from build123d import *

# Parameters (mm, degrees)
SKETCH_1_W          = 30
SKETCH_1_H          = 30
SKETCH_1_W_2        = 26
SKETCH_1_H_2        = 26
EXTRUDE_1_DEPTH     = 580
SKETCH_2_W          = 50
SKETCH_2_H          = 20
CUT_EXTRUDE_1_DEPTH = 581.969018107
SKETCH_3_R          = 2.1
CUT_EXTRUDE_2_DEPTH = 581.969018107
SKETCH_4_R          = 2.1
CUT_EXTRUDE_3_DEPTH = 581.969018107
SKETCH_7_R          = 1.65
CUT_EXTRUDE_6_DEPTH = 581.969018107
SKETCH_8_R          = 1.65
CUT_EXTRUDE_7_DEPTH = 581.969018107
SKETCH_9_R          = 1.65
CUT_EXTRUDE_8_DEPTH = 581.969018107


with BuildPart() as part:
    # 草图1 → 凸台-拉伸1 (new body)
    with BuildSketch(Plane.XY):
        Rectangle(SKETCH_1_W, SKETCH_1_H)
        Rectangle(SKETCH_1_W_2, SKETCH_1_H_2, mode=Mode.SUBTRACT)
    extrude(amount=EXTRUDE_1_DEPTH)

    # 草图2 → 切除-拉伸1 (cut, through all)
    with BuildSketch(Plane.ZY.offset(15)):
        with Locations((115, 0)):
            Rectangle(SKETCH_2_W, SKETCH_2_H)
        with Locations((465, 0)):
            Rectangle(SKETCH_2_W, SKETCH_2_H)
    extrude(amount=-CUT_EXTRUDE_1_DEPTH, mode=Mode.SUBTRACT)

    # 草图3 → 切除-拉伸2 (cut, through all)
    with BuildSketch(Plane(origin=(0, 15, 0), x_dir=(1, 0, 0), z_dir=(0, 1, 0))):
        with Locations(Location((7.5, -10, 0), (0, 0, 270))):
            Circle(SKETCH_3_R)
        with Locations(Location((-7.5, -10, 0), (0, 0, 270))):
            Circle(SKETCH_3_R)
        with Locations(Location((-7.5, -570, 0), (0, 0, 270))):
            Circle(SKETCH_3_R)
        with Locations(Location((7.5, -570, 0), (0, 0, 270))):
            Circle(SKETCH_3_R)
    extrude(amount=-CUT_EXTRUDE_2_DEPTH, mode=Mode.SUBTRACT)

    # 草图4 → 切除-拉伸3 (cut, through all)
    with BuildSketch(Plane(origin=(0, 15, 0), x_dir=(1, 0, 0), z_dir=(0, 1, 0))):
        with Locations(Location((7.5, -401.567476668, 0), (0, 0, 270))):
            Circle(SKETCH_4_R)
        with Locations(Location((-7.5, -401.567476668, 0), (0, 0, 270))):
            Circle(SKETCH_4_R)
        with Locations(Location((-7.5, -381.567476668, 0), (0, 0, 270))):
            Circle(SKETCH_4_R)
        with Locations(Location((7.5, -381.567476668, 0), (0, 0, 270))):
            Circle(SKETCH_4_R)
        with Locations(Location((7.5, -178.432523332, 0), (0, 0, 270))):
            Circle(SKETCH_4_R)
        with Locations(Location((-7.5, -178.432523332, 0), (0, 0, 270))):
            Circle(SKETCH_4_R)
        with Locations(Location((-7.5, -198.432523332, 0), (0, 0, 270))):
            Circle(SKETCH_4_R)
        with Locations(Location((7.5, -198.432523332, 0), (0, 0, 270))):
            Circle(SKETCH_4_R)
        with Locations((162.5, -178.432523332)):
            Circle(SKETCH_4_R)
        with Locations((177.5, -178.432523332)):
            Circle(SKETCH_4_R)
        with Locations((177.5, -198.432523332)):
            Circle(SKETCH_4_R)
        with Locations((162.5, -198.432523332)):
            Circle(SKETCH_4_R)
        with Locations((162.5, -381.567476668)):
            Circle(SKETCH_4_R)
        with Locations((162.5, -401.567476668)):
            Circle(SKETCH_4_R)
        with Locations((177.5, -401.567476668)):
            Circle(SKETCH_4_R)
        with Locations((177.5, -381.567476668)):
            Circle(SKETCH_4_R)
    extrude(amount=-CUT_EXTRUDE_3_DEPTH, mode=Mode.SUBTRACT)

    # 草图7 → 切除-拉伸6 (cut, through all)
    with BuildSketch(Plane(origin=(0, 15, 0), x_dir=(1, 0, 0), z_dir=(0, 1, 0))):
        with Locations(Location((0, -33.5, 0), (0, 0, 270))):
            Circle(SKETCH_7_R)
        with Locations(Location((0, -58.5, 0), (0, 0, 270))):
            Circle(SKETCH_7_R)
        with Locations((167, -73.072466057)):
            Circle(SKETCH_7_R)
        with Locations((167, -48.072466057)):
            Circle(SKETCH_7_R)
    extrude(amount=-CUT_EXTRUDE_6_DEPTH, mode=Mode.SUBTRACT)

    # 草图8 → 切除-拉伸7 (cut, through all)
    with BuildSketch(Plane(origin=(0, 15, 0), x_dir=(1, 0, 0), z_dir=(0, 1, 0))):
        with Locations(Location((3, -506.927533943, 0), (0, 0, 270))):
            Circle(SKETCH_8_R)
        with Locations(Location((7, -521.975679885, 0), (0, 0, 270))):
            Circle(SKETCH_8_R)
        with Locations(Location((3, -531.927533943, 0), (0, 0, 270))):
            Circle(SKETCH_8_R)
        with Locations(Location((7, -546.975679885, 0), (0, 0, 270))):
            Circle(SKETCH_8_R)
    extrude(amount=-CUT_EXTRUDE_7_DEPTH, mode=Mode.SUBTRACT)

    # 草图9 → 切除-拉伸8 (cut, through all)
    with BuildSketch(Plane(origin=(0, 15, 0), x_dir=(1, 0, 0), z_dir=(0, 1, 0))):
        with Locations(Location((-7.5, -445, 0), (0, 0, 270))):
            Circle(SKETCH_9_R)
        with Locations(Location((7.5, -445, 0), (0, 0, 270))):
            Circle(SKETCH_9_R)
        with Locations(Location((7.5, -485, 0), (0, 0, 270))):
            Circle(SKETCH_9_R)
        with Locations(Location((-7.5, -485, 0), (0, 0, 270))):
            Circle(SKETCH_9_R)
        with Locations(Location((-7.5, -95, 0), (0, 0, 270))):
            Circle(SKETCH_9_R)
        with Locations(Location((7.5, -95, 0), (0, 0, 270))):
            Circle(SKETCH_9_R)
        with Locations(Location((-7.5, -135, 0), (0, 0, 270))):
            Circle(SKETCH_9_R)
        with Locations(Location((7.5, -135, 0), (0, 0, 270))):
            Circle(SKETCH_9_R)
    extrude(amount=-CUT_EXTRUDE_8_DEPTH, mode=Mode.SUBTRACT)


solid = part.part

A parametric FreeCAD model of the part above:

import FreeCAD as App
import Part
import Sketcher
from FreeCAD import Vector


def add_polygon(sketch, points):
    """Adds a closed chain of lines whose ends are joined by coincident constraints."""
    first, n = sketch.GeometryCount, len(points)
    for a, b in zip(points, points[1:] + points[:1]):
        sketch.addGeometry(Part.LineSegment(App.Vector(*a, 0), App.Vector(*b, 0)), False)
    for i in range(n):
        sketch.addConstraint(Sketcher.Constraint("Coincident", first + i, 2, first + (i + 1) % n, 1))

doc = App.newDocument("Part")
body = doc.addObject("PartDesign::Body", "Body")

# Sketch on XY plane
sketch1 = body.newObject("Sketcher::SketchObject", "Sketch")
sketch1.AttachmentSupport = (doc.getObject("XY_Plane"), [""])
sketch1.MapMode = "FlatFace"
add_polygon(sketch1, [(-15, 15), (-15, -15), (15, -15), (15, 15)])  # lines 0-3
add_polygon(sketch1, [(13, -13), (-13, -13), (-13, 13), (13, 13)])  # lines 4-7
sketch1.addConstraint(Sketcher.Constraint("Vertical", 0))
sketch1.addConstraint(Sketcher.Constraint("Horizontal", 1))
sketch1.addConstraint(Sketcher.Constraint("Vertical", 2))
sketch1.addConstraint(Sketcher.Constraint("Horizontal", 3))
sketch1.addConstraint(Sketcher.Constraint("Horizontal", 4))
sketch1.addConstraint(Sketcher.Constraint("Vertical", 5))
sketch1.addConstraint(Sketcher.Constraint("Horizontal", 6))
sketch1.addConstraint(Sketcher.Constraint("Vertical", 7))
sketch1.addConstraint(Sketcher.Constraint("Symmetric", 0, 2, 2, 2, -1, 1))
sketch1.addConstraint(Sketcher.Constraint("Symmetric", 4, 2, 6, 2, -1, 1))
sketch1.addConstraint(Sketcher.Constraint("Equal", 3, 0))
sketch1.addConstraint(Sketcher.Constraint("Equal", 6, 5))
sketch1.addConstraint(Sketcher.Constraint("DistanceX", 1, 1, 1, 2, 30.0))
sketch1.addConstraint(Sketcher.Constraint("DistanceX", 4, 2, 4, 1, 26.0))
pad1 = body.newObject("PartDesign::Pad", "Pad")
pad1.Profile = sketch1
pad1.Length = 580

# Sketch on YZ plane
sketch2 = body.newObject("Sketcher::SketchObject", "Sketch001")
sketch2.AttachmentSupport = (doc.getObject("YZ_Plane"), [""])
sketch2.MapMode = "FlatFace"
sketch2.AttachmentOffset = App.Placement(Vector(0, 0, -15), App.Rotation())
add_polygon(sketch2, [(10, 90), (-10, 90), (-10, 140), (10, 140)])  # lines 0-3
add_polygon(sketch2, [(10, 440), (-10, 440), (-10, 490), (10, 490)])  # lines 4-7
sketch2.addConstraint(Sketcher.Constraint("Horizontal", 0))
sketch2.addConstraint(Sketcher.Constraint("Vertical", 1))
sketch2.addConstraint(Sketcher.Constraint("Horizontal", 2))
sketch2.addConstraint(Sketcher.Constraint("Vertical", 3))
sketch2.addConstraint(Sketcher.Constraint("Horizontal", 4))
sketch2.addConstraint(Sketcher.Constraint("Vertical", 5))
sketch2.addConstraint(Sketcher.Constraint("Horizontal", 6))
sketch2.addConstraint(Sketcher.Constraint("Vertical", 7))
sketch2.addConstraint(Sketcher.Constraint("Vertical", 1, 2, 4, 2))
sketch2.addConstraint(Sketcher.Constraint("Vertical", 3, 2, 6, 2))
sketch2.addConstraint(Sketcher.Constraint("Equal", 3, 5))
sketch2.addConstraint(Sketcher.Constraint("DistanceX", 0, 2, 0, 1, 20.0))
sketch2.addConstraint(Sketcher.Constraint("DistanceY", 1, 1, 1, 2, 50.0))
sketch2.addConstraint(Sketcher.Constraint("DistanceX", 0, 2, -1, 1, 10.0))
sketch2.addConstraint(Sketcher.Constraint("DistanceY", -1, 1, 0, 2, 90.0))
sketch2.addConstraint(Sketcher.Constraint("DistanceY", -1, 1, 4, 2, 440.0))
pocket1 = body.newObject("PartDesign::Pocket", "Pocket")
pocket1.Profile = sketch2
pocket1.Type = "ThroughAll"
pocket1.Reversed = True

# Sketch on XZ plane
sketch3 = body.newObject("Sketcher::SketchObject", "Sketch002")
sketch3.AttachmentSupport = (doc.getObject("XZ_Plane"), [""])
sketch3.MapMode = "FlatFace"
sketch3.AttachmentOffset = App.Placement(Vector(0, 0, -15), App.Rotation())
sketch3.addGeometry(Part.Circle(Vector(7.5, 10, 0), Vector(0, 0, 1), 2.1), False)
sketch3.addGeometry(Part.Circle(Vector(-7.5, 10, 0), Vector(0, 0, 1), 2.1), False)
sketch3.addGeometry(Part.Circle(Vector(-7.5, 570, 0), Vector(0, 0, 1), 2.1), False)
sketch3.addGeometry(Part.Circle(Vector(7.5, 570, 0), Vector(0, 0, 1), 2.1), False)
sketch3.addConstraint(Sketcher.Constraint("Equal", 0, 1))
sketch3.addConstraint(Sketcher.Constraint("Equal", 1, 2))
sketch3.addConstraint(Sketcher.Constraint("Equal", 2, 3))
sketch3.addConstraint(Sketcher.Constraint("Symmetric", 0, 3, 1, 3, -2))
sketch3.addConstraint(Sketcher.Constraint("Symmetric", 2, 3, 3, 3, -2))
sketch3.addConstraint(Sketcher.Constraint("Vertical", 1, 3, 2, 3))
sketch3.addConstraint(Sketcher.Constraint("Diameter", 0, 4.2))
sketch3.addConstraint(Sketcher.Constraint("DistanceY", -1, 1, 0, 3, 10.0))
sketch3.addConstraint(Sketcher.Constraint("DistanceY", -1, 1, 2, 3, 570.0))
sketch3.addConstraint(Sketcher.Constraint("DistanceX", 1, 3, 0, 3, 15.0))
pocket2 = body.newObject("PartDesign::Pocket", "Pocket001")
pocket2.Profile = sketch3
pocket2.Type = "ThroughAll"
pocket2.Reversed = True

# Sketch on XZ plane
sketch4 = body.newObject("Sketcher::SketchObject", "Sketch003")
sketch4.AttachmentSupport = (doc.getObject("XZ_Plane"), [""])
sketch4.MapMode = "FlatFace"
sketch4.AttachmentOffset = App.Placement(Vector(0, 0, -15), App.Rotation())
sketch4.addGeometry(Part.Circle(Vector(7.5, 401.6, 0), Vector(0, 0, 1), 2.1), False)
sketch4.addGeometry(Part.Circle(Vector(-7.5, 401.6, 0), Vector(0, 0, 1), 2.1), False)
sketch4.addGeometry(Part.Circle(Vector(-7.5, 381.6, 0), Vector(0, 0, 1), 2.1), False)
sketch4.addGeometry(Part.Circle(Vector(7.5, 381.6, 0), Vector(0, 0, 1), 2.1), False)
sketch4.addGeometry(Part.Circle(Vector(7.5, 178.4, 0), Vector(0, 0, 1), 2.1), False)
sketch4.addGeometry(Part.Circle(Vector(-7.5, 178.4, 0), Vector(0, 0, 1), 2.1), False)
sketch4.addGeometry(Part.Circle(Vector(-7.5, 198.4, 0), Vector(0, 0, 1), 2.1), False)
sketch4.addGeometry(Part.Circle(Vector(7.5, 198.4, 0), Vector(0, 0, 1), 2.1), False)
sketch4.addGeometry(Part.Circle(Vector(162.5, 178.4, 0), Vector(0, 0, 1), 2.1), False)
sketch4.addGeometry(Part.Circle(Vector(177.5, 178.4, 0), Vector(0, 0, 1), 2.1), False)
sketch4.addGeometry(Part.Circle(Vector(177.5, 198.4, 0), Vector(0, 0, 1), 2.1), False)
sketch4.addGeometry(Part.Circle(Vector(162.5, 198.4, 0), Vector(0, 0, 1), 2.1), False)
sketch4.addGeometry(Part.Circle(Vector(162.5, 381.6, 0), Vector(0, 0, 1), 2.1), False)
sketch4.addGeometry(Part.Circle(Vector(162.5, 401.6, 0), Vector(0, 0, 1), 2.1), False)
sketch4.addGeometry(Part.Circle(Vector(177.5, 401.6, 0), Vector(0, 0, 1), 2.1), False)
sketch4.addGeometry(Part.Circle(Vector(177.5, 381.6, 0), Vector(0, 0, 1), 2.1), False)
sketch4.addConstraint(Sketcher.Constraint("Equal", 0, 1))
sketch4.addConstraint(Sketcher.Constraint("Equal", 1, 2))
sketch4.addConstraint(Sketcher.Constraint("Equal", 2, 3))
sketch4.addConstraint(Sketcher.Constraint("Equal", 3, 4))
sketch4.addConstraint(Sketcher.Constraint("Equal", 4, 5))
sketch4.addConstraint(Sketcher.Constraint("Equal", 5, 6))
sketch4.addConstraint(Sketcher.Constraint("Equal", 6, 7))
sketch4.addConstraint(Sketcher.Constraint("Equal", 7, 8))
sketch4.addConstraint(Sketcher.Constraint("Equal", 8, 9))
sketch4.addConstraint(Sketcher.Constraint("Equal", 9, 10))
sketch4.addConstraint(Sketcher.Constraint("Equal", 10, 11))
sketch4.addConstraint(Sketcher.Constraint("Equal", 11, 12))
sketch4.addConstraint(Sketcher.Constraint("Equal", 12, 13))
sketch4.addConstraint(Sketcher.Constraint("Equal", 13, 14))
sketch4.addConstraint(Sketcher.Constraint("Equal", 14, 15))
sketch4.addConstraint(Sketcher.Constraint("Symmetric", 0, 3, 1, 3, -2))
sketch4.addConstraint(Sketcher.Constraint("Symmetric", 2, 3, 3, 3, -2))
sketch4.addConstraint(Sketcher.Constraint("Symmetric", 4, 3, 5, 3, -2))
sketch4.addConstraint(Sketcher.Constraint("Symmetric", 6, 3, 7, 3, -2))
sketch4.addConstraint(Sketcher.Constraint("Horizontal", 5, 3, 8, 3))
sketch4.addConstraint(Sketcher.Constraint("Horizontal", 8, 3, 9, 3))
sketch4.addConstraint(Sketcher.Constraint("Horizontal", 7, 3, 10, 3))
sketch4.addConstraint(Sketcher.Constraint("Horizontal", 10, 3, 11, 3))
sketch4.addConstraint(Sketcher.Constraint("Horizontal", 3, 3, 12, 3))
sketch4.addConstraint(Sketcher.Constraint("Horizontal", 1, 3, 13, 3))
sketch4.addConstraint(Sketcher.Constraint("Horizontal", 13, 3, 14, 3))
sketch4.addConstraint(Sketcher.Constraint("Horizontal", 12, 3, 15, 3))
sketch4.addConstraint(Sketcher.Constraint("Vertical", 1, 3, 2, 3))
sketch4.addConstraint(Sketcher.Constraint("Vertical", 3, 3, 4, 3))
sketch4.addConstraint(Sketcher.Constraint("Vertical", 5, 3, 6, 3))
sketch4.addConstraint(Sketcher.Constraint("Vertical", 9, 3, 10, 3))
sketch4.addConstraint(Sketcher.Constraint("Vertical", 8, 3, 11, 3))
sketch4.addConstraint(Sketcher.Constraint("Vertical", 11, 3, 12, 3))
sketch4.addConstraint(Sketcher.Constraint("Vertical", 12, 3, 13, 3))
sketch4.addConstraint(Sketcher.Constraint("Vertical", 10, 3, 14, 3))
sketch4.addConstraint(Sketcher.Constraint("Vertical", 14, 3, 15, 3))
sketch4.addConstraint(Sketcher.Constraint("Diameter", 0, 4.2))
sketch4.addConstraint(Sketcher.Constraint("DistanceX", 1, 3, 0, 3, 15.0))
sketch4.addConstraint(Sketcher.Constraint("DistanceY", 2, 3, 1, 3, 20.0))
sketch4.addConstraint(Sketcher.Constraint("DistanceY", 5, 3, 6, 3, 20.0))
sketch4.addConstraint(Sketcher.Constraint("DistanceX", 4, 3, 8, 3, 155.0))
sketch4.addConstraint(Sketcher.Constraint("DistanceX", 8, 3, 9, 3, 15.0))
sketch4.addConstraint(Sketcher.Constraint("DistanceY", -1, 1, 0, 3, 401.567477))
sketch4.addConstraint(Sketcher.Constraint("DistanceY", -1, 1, 4, 3, 178.432523))
pocket3 = body.newObject("PartDesign::Pocket", "Pocket002")
pocket3.Profile = sketch4
pocket3.Type = "ThroughAll"
pocket3.Reversed = True

# Sketch on XZ plane
sketch5 = body.newObject("Sketcher::SketchObject", "Sketch004")
sketch5.AttachmentSupport = (doc.getObject("XZ_Plane"), [""])
sketch5.MapMode = "FlatFace"
sketch5.AttachmentOffset = App.Placement(Vector(0, 0, -15), App.Rotation())
sketch5.addGeometry(Part.Circle(Vector(0, 33.5, 0), Vector(0, 0, 1), 1.6), False)
sketch5.addGeometry(Part.Circle(Vector(0, 58.5, 0), Vector(0, 0, 1), 1.6), False)
sketch5.addGeometry(Part.Circle(Vector(167, 73.1, 0), Vector(0, 0, 1), 1.6), False)
sketch5.addGeometry(Part.Circle(Vector(167, 48.1, 0), Vector(0, 0, 1), 1.6), False)
sketch5.addConstraint(Sketcher.Constraint("Equal", 0, 1))
sketch5.addConstraint(Sketcher.Constraint("Equal", 1, 2))
sketch5.addConstraint(Sketcher.Constraint("Equal", 2, 3))
sketch5.addConstraint(Sketcher.Constraint("PointOnObject", 0, 3, -2))
sketch5.addConstraint(Sketcher.Constraint("PointOnObject", 1, 3, -2))
sketch5.addConstraint(Sketcher.Constraint("Vertical", 2, 3, 3, 3))
sketch5.addConstraint(Sketcher.Constraint("Diameter", 0, 3.3))
sketch5.addConstraint(Sketcher.Constraint("DistanceX", -1, 1, 2, 3, 167.0))
sketch5.addConstraint(Sketcher.Constraint("DistanceY", 0, 3, 1, 3, 25.0))
sketch5.addConstraint(Sketcher.Constraint("DistanceY", 3, 3, 2, 3, 25.0))
sketch5.addConstraint(Sketcher.Constraint("DistanceY", -1, 1, 0, 3, 33.5))
sketch5.addConstraint(Sketcher.Constraint("DistanceY", -1, 1, 2, 3, 73.072466))
pocket4 = body.newObject("PartDesign::Pocket", "Pocket003")
pocket4.Profile = sketch5
pocket4.Type = "ThroughAll"
pocket4.Reversed = True

# Sketch on XZ plane
sketch6 = body.newObject("Sketcher::SketchObject", "Sketch005")
sketch6.AttachmentSupport = (doc.getObject("XZ_Plane"), [""])
sketch6.MapMode = "FlatFace"
sketch6.AttachmentOffset = App.Placement(Vector(0, 0, -15), App.Rotation())
sketch6.addGeometry(Part.Circle(Vector(3, 506.9, 0), Vector(0, 0, 1), 1.6), False)
sketch6.addGeometry(Part.Circle(Vector(7, 522, 0), Vector(0, 0, 1), 1.6), False)
sketch6.addGeometry(Part.Circle(Vector(3, 531.9, 0), Vector(0, 0, 1), 1.6), False)
sketch6.addGeometry(Part.Circle(Vector(7, 547, 0), Vector(0, 0, 1), 1.6), False)
sketch6.addConstraint(Sketcher.Constraint("Equal", 0, 1))
sketch6.addConstraint(Sketcher.Constraint("Equal", 1, 2))
sketch6.addConstraint(Sketcher.Constraint("Equal", 2, 3))
sketch6.addConstraint(Sketcher.Constraint("Vertical", 0, 3, 2, 3))
sketch6.addConstraint(Sketcher.Constraint("Vertical", 1, 3, 3, 3))
sketch6.addConstraint(Sketcher.Constraint("Diameter", 0, 3.3))
sketch6.addConstraint(Sketcher.Constraint("DistanceX", -1, 1, 0, 3, 3.0))
sketch6.addConstraint(Sketcher.Constraint("DistanceX", -1, 1, 1, 3, 7.0))
sketch6.addConstraint(Sketcher.Constraint("DistanceY", 0, 3, 2, 3, 25.0))
sketch6.addConstraint(Sketcher.Constraint("DistanceY", 1, 3, 3, 3, 25.0))
sketch6.addConstraint(Sketcher.Constraint("DistanceY", -1, 1, 1, 3, 521.97568))
sketch6.addConstraint(Sketcher.Constraint("DistanceY", -1, 1, 0, 3, 506.927534))
pocket5 = body.newObject("PartDesign::Pocket", "Pocket004")
pocket5.Profile = sketch6
pocket5.Type = "ThroughAll"
pocket5.Reversed = True

# Sketch on XZ plane
sketch7 = body.newObject("Sketcher::SketchObject", "Sketch006")
sketch7.AttachmentSupport = (doc.getObject("XZ_Plane"), [""])
sketch7.MapMode = "FlatFace"
sketch7.AttachmentOffset = App.Placement(Vector(0, 0, -15), App.Rotation())
sketch7.addGeometry(Part.Circle(Vector(-7.5, 445, 0), Vector(0, 0, 1), 1.6), False)
sketch7.addGeometry(Part.Circle(Vector(7.5, 445, 0), Vector(0, 0, 1), 1.6), False)
sketch7.addGeometry(Part.Circle(Vector(7.5, 485, 0), Vector(0, 0, 1), 1.6), False)
sketch7.addGeometry(Part.Circle(Vector(-7.5, 485, 0), Vector(0, 0, 1), 1.6), False)
sketch7.addGeometry(Part.Circle(Vector(-7.5, 95, 0), Vector(0, 0, 1), 1.6), False)
sketch7.addGeometry(Part.Circle(Vector(7.5, 95, 0), Vector(0, 0, 1), 1.6), False)
sketch7.addGeometry(Part.Circle(Vector(-7.5, 135, 0), Vector(0, 0, 1), 1.6), False)
sketch7.addGeometry(Part.Circle(Vector(7.5, 135, 0), Vector(0, 0, 1), 1.6), False)
sketch7.addConstraint(Sketcher.Constraint("Equal", 0, 1))
sketch7.addConstraint(Sketcher.Constraint("Equal", 1, 2))
sketch7.addConstraint(Sketcher.Constraint("Equal", 2, 3))
sketch7.addConstraint(Sketcher.Constraint("Equal", 3, 4))
sketch7.addConstraint(Sketcher.Constraint("Equal", 4, 5))
sketch7.addConstraint(Sketcher.Constraint("Equal", 5, 6))
sketch7.addConstraint(Sketcher.Constraint("Equal", 6, 7))
sketch7.addConstraint(Sketcher.Constraint("Symmetric", 0, 3, 1, 3, -2))
sketch7.addConstraint(Sketcher.Constraint("Symmetric", 2, 3, 3, 3, -2))
sketch7.addConstraint(Sketcher.Constraint("Symmetric", 4, 3, 5, 3, -2))
sketch7.addConstraint(Sketcher.Constraint("Symmetric", 6, 3, 7, 3, -2))
sketch7.addConstraint(Sketcher.Constraint("Vertical", 1, 3, 2, 3))
sketch7.addConstraint(Sketcher.Constraint("Vertical", 3, 3, 4, 3))
sketch7.addConstraint(Sketcher.Constraint("Vertical", 4, 3, 6, 3))
sketch7.addConstraint(Sketcher.Constraint("Diameter", 0, 3.3))
sketch7.addConstraint(Sketcher.Constraint("DistanceY", -1, 1, 0, 3, 445.0))
sketch7.addConstraint(Sketcher.Constraint("DistanceY", -1, 1, 2, 3, 485.0))
sketch7.addConstraint(Sketcher.Constraint("DistanceY", -1, 1, 4, 3, 95.0))
sketch7.addConstraint(Sketcher.Constraint("DistanceY", -1, 1, 6, 3, 135.0))
sketch7.addConstraint(Sketcher.Constraint("DistanceX", 0, 3, 1, 3, 15.0))
pocket6 = body.newObject("PartDesign::Pocket", "Pocket005")
pocket6.Profile = sketch7
pocket6.Type = "ThroughAll"
pocket6.Reversed = True

doc.recompute()
